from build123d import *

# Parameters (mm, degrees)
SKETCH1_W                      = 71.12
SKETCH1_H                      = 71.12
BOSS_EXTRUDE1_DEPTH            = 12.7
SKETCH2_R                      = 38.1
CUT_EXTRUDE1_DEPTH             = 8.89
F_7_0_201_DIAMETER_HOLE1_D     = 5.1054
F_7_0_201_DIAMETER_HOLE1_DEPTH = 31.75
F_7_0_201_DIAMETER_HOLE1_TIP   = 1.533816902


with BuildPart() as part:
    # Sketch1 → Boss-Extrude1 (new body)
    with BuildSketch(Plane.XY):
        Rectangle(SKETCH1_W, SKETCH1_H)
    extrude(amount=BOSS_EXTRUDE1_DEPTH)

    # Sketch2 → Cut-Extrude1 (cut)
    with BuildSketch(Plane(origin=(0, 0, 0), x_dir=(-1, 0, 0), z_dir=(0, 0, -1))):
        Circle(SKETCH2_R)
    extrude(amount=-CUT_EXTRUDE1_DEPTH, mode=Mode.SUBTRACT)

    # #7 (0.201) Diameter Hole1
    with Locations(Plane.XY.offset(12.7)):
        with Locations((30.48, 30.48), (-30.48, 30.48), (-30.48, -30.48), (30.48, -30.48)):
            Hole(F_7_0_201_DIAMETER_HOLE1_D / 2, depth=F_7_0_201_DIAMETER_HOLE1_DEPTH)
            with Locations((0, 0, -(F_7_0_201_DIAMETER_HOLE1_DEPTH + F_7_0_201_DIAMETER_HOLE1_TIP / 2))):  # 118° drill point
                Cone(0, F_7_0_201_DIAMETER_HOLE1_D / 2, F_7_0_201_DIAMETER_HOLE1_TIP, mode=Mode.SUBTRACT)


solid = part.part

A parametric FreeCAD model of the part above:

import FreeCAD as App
import Part
import Sketcher
from FreeCAD import Vector
Q = App.Units.Quantity

doc = App.newDocument("Part")
body = doc.addObject("PartDesign::Body", "Body")

# Sketch on XY plane
sketch1 = doc.addObject("Sketcher::SketchObject", "Sketch")
body.addObject(sketch1)
sketch1.AttachmentSupport = (doc.XY_Plane, [""])
sketch1.MapMode = "FlatFace"
sketch1.addGeometry(Part.LineSegment(Vector(-35.56, 35.56, 0), Vector(-35.56, -35.56, 0)), False)
sketch1.addGeometry(Part.LineSegment(Vector(-35.56, -35.56, 0), Vector(35.56, -35.56, 0)), False)
sketch1.addGeometry(Part.LineSegment(Vector(35.56, -35.56, 0), Vector(35.56, 35.56, 0)), False)
sketch1.addGeometry(Part.LineSegment(Vector(35.56, 35.56, 0), Vector(-35.56, 35.56, 0)), False)
sketch1.addConstraint(Sketcher.Constraint("Coincident", 0, 2, 1, 1))
sketch1.addConstraint(Sketcher.Constraint("Coincident", 1, 2, 2, 1))
sketch1.addConstraint(Sketcher.Constraint("Coincident", 2, 2, 3, 1))
sketch1.addConstraint(Sketcher.Constraint("Coincident", 3, 2, 0, 1))
sketch1.addConstraint(Sketcher.Constraint("Vertical", 0))
sketch1.addConstraint(Sketcher.Constraint("Horizontal", 1))
sketch1.addConstraint(Sketcher.Constraint("Vertical", 2))
sketch1.addConstraint(Sketcher.Constraint("Horizontal", 3))
sketch1.addConstraint(Sketcher.Constraint("Symmetric", 0, 2, 2, 2, -1, 1))
sketch1.addConstraint(Sketcher.Constraint("Equal", 3, 0))
sketch1.addConstraint(Sketcher.Constraint("DistanceX", 1, 1, 1, 2, Q("2.8 in")))
pad1 = doc.addObject("PartDesign::Pad", "Pad")
body.addObject(pad1)
pad1.Profile = sketch1
pad1.Length = Q("0.5 in")

# Sketch on XY plane
sketch2 = doc.addObject("Sketcher::SketchObject", "Sketch001")
body.addObject(sketch2)
sketch2.AttachmentSupport = (doc.XY_Plane, [""])
sketch2.MapMode = "FlatFace"
sketch2.addGeometry(Part.Circle(Vector(0, 0, 0), Vector(0, 0, 1), 38.1), False)
sketch2.addConstraint(Sketcher.Constraint("Coincident", 0, 3, -1, 1))
sketch2.addConstraint(Sketcher.Constraint("Diameter", 0, Q("3 in")))
pocket1 = doc.addObject("PartDesign::Pocket", "Pocket")
body.addObject(pocket1)
pocket1.Profile = sketch2
pocket1.Length = Q("0.35 in")
pocket1.Reversed = True

# Sketch on XY plane
sketch3 = doc.addObject("Sketcher::SketchObject", "Sketch002")
body.addObject(sketch3)
sketch3.AttachmentSupport = (doc.XY_Plane, [""])
sketch3.MapMode = "FlatFace"
sketch3.AttachmentOffset = App.Placement(Vector(0, 0, 0.5 * 25.4), App.Rotation())
sketch3.addGeometry(Part.Circle(Vector(30.48, 30.48, 0), Vector(0, 0, 1), 2.5527), False)
sketch3.addGeometry(Part.Circle(Vector(-30.48, 30.48, 0), Vector(0, 0, 1), 2.5527), False)
sketch3.addGeometry(Part.Circle(Vector(-30.48, -30.48, 0), Vector(0, 0, 1), 2.5527), False)
sketch3.addGeometry(Part.Circle(Vector(30.48, -30.48, 0), Vector(0, 0, 1), 2.5527), False)
sketch3.addConstraint(Sketcher.Constraint("Equal", 0, 1))
sketch3.addConstraint(Sketcher.Constraint("Equal", 1, 2))
sketch3.addConstraint(Sketcher.Constraint("Equal", 2, 3))
sketch3.addConstraint(Sketcher.Constraint("Symmetric", 0, 3, 2, 3, -1, 1))
sketch3.addConstraint(Sketcher.Constraint("Symmetric", 1, 3, 3, 3, -1, 1))
sketch3.addConstraint(Sketcher.Constraint("Symmetric", 0, 3, 1, 3, -2))
sketch3.addConstraint(Sketcher.Constraint("Diameter", 0, Q("0.201 in")))
sketch3.addConstraint(Sketcher.Constraint("DistanceX", -1, 1, 0, 3, Q("1.2 in")))
sketch3.addConstraint(Sketcher.Constraint("DistanceY", -1, 1, 0, 3, Q("1.2 in")))
doc.recompute()
hole = doc.addObject("PartDesign::Hole", "Hole")
body.addObject(hole)
hole.Profile = sketch3
hole.ThreadType = "None"
hole.Diameter = Q("0.201 in")
hole.DepthType = "Dimension"
hole.Depth = Q("1.25 in")
hole.DrillPoint = "Angled"
hole.DrillPointAngle = 118

doc.recompute()
